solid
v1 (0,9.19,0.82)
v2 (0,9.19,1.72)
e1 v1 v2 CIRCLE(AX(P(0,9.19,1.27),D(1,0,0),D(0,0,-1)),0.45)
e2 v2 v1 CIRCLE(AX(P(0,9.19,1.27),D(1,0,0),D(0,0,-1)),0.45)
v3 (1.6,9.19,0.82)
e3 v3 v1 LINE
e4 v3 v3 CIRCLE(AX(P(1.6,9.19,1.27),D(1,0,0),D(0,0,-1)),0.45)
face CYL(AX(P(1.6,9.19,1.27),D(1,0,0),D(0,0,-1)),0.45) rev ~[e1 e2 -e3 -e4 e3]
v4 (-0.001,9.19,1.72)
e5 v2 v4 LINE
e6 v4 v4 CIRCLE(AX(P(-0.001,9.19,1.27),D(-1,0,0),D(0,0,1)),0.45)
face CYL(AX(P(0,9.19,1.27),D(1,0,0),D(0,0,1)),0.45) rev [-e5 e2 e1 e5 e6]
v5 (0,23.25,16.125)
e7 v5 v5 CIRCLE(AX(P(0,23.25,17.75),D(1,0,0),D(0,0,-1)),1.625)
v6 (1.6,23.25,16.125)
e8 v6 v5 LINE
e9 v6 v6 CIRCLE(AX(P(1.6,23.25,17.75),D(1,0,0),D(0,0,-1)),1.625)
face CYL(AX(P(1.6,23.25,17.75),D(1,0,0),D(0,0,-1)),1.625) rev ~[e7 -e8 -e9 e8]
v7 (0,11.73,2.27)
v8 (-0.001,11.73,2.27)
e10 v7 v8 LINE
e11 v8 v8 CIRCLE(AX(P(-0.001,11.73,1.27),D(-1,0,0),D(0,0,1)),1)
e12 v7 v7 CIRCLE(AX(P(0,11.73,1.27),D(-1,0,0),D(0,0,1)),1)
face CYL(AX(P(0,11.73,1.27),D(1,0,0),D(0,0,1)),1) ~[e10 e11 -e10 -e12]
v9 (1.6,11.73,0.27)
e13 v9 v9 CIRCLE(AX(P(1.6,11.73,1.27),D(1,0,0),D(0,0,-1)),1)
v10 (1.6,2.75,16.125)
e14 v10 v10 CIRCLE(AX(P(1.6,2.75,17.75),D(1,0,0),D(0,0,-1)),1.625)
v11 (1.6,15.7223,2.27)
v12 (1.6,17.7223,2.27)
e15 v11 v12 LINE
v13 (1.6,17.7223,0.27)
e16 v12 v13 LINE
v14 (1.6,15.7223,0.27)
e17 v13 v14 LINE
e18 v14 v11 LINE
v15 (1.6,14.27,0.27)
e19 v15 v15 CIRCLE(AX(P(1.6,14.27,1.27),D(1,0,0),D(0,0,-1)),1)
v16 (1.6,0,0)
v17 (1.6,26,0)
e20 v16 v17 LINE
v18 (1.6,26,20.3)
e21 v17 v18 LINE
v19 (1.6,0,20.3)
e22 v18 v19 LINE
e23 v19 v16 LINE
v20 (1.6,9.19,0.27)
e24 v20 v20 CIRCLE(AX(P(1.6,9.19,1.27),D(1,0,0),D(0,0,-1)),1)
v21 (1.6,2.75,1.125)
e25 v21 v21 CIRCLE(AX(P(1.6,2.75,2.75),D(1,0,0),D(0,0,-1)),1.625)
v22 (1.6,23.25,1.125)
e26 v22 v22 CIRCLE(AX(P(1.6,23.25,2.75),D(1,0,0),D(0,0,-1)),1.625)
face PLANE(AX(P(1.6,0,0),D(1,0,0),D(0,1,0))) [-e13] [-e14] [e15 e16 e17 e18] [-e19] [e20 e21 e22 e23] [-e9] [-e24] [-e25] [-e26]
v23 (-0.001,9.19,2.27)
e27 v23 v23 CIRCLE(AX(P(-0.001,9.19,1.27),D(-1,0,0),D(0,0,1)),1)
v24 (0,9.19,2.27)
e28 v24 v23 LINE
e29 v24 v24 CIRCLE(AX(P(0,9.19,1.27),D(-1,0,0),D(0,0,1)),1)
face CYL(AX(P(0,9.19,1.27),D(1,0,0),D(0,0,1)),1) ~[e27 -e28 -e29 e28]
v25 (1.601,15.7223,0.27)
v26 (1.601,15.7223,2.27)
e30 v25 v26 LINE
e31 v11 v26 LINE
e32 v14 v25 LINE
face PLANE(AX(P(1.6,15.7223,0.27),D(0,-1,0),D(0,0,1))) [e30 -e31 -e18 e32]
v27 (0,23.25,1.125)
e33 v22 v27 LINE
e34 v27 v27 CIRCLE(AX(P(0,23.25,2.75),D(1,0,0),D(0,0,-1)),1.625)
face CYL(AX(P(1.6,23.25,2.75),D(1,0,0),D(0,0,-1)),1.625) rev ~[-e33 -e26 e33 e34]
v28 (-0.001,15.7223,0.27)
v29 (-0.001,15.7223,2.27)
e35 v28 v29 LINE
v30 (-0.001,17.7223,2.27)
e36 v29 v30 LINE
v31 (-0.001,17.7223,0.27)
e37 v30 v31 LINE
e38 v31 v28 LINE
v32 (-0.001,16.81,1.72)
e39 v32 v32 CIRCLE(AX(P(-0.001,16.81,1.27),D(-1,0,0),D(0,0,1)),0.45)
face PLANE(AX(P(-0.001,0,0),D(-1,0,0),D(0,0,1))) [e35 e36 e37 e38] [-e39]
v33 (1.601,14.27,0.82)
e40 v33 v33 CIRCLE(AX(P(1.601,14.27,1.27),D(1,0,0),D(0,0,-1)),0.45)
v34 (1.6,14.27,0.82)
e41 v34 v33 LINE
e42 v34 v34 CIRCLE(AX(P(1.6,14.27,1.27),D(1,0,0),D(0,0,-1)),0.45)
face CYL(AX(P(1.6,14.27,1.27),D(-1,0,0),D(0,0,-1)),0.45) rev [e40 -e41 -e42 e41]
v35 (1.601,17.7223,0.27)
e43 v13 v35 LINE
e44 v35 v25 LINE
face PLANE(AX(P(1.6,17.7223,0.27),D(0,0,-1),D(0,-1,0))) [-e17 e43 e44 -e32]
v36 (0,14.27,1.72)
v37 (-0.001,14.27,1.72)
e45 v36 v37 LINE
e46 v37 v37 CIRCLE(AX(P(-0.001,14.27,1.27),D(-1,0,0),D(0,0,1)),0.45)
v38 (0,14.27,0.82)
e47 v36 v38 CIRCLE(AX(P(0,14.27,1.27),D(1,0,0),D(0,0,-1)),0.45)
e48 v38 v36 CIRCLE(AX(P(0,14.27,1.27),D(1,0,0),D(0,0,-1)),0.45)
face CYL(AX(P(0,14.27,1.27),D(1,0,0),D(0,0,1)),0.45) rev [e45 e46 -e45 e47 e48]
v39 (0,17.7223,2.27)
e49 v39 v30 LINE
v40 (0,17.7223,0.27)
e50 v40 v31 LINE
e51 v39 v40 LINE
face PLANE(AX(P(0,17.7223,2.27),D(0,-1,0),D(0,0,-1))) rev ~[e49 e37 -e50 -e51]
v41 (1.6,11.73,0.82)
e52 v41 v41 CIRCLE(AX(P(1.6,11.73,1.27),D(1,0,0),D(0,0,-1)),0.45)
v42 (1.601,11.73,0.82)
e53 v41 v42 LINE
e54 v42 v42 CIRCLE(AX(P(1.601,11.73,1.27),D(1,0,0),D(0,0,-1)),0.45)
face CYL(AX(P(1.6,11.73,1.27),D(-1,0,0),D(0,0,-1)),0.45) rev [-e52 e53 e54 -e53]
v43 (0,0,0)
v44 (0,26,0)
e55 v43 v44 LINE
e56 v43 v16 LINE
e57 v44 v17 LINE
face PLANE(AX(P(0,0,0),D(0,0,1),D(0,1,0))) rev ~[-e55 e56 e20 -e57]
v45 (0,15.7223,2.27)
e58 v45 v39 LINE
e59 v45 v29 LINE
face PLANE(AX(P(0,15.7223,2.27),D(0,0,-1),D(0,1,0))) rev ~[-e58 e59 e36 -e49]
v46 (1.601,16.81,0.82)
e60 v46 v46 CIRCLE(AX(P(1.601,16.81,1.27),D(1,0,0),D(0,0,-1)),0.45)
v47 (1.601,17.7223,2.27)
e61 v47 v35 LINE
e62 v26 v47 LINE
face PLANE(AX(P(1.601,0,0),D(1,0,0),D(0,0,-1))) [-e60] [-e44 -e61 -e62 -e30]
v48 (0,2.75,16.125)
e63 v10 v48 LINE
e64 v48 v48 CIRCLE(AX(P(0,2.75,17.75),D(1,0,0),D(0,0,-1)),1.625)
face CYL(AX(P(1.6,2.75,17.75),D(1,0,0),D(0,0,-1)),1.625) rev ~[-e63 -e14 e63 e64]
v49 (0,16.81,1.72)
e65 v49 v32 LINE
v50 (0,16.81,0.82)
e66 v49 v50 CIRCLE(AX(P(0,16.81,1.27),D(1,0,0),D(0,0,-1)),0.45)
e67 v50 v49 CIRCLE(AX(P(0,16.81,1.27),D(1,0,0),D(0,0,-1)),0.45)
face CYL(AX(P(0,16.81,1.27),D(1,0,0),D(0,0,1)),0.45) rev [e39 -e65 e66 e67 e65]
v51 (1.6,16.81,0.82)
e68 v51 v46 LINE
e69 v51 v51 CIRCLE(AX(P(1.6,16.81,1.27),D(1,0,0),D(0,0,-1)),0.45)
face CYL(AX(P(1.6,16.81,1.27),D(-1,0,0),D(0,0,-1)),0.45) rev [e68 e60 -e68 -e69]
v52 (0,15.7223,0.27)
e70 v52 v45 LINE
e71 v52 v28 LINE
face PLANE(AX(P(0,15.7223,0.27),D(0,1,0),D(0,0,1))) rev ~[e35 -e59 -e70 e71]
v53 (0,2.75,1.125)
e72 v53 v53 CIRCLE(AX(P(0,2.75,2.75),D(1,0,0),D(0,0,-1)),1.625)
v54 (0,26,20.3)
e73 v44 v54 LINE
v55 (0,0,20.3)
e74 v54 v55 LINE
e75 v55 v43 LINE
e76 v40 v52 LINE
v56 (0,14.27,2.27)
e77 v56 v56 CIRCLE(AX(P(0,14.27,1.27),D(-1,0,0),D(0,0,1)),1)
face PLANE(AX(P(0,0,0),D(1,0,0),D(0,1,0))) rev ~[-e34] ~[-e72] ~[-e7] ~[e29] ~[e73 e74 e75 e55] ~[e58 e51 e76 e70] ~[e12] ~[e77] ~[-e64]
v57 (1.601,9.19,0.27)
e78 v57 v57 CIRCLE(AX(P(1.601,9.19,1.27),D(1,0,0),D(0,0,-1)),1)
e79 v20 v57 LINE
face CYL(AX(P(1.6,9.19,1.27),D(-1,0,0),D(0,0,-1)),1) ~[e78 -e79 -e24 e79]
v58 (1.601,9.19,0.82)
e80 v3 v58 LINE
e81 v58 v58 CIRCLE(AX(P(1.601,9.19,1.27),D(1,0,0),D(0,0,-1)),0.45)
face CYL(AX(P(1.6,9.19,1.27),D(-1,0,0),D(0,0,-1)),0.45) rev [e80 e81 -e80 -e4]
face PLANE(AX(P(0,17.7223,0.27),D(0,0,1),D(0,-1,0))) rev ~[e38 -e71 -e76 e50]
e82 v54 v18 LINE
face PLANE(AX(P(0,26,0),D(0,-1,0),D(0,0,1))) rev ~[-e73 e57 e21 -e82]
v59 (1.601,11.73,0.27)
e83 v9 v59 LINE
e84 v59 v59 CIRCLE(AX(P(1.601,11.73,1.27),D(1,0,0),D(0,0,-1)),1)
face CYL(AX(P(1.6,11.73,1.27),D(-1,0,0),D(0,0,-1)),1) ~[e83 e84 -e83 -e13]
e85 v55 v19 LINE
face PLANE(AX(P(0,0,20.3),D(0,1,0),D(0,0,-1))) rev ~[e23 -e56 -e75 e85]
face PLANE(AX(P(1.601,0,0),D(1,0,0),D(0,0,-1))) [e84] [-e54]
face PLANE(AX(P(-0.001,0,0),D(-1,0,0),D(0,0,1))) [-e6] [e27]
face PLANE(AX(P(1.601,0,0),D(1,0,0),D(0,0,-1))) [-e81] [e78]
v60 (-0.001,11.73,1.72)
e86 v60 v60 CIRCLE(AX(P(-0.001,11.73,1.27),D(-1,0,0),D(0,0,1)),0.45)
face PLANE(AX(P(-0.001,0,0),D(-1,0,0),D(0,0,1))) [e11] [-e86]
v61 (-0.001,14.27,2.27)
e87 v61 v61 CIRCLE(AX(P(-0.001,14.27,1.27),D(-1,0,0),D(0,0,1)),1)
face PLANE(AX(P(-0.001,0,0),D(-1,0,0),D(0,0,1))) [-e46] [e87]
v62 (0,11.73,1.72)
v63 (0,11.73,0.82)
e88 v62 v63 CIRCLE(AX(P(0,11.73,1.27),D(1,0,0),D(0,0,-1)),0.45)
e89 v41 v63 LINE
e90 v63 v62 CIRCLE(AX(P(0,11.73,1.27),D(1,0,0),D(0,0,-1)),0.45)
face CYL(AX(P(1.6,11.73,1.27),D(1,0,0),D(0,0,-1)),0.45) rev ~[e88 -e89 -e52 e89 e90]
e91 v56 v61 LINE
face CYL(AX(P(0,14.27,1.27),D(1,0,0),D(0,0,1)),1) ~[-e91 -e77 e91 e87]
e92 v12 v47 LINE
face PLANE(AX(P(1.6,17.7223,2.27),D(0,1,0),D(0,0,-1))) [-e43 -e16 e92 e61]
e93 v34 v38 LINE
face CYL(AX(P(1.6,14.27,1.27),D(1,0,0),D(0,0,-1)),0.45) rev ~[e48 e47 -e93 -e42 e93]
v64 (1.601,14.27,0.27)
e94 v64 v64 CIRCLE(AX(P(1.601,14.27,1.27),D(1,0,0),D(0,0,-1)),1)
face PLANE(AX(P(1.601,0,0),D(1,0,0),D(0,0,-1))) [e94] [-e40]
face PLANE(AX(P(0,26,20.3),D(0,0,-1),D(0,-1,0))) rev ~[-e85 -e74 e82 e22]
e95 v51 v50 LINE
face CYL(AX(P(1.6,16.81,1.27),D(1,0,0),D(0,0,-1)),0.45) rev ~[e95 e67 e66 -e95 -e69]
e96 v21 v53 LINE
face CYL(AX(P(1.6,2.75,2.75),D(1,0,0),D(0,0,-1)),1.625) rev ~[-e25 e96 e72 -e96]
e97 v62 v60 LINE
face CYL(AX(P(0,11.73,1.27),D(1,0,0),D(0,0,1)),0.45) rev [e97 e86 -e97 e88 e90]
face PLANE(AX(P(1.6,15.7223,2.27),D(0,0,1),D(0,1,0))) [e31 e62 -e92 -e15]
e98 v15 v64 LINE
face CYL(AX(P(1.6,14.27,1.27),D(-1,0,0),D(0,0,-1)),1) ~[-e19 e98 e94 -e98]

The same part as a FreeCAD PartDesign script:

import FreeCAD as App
import Part
import Sketcher
Q = App.Units.Quantity


def add_polygon(sketch, points):
    """Adds a closed chain of lines whose ends are joined by coincident constraints."""
    first, n = sketch.GeometryCount, len(points)
    for a, b in zip(points, points[1:] + points[:1]):
        sketch.addGeometry(Part.LineSegment(App.Vector(*a, 0), App.Vector(*b, 0)), False)
    for i in range(n):
        sketch.addConstraint(Sketcher.Constraint("Coincident", first + i, 2, first + (i + 1) % n, 1))

doc = App.newDocument("Part")
body = doc.addObject("PartDesign::Body", "Body")

sketch1 = body.newObject("Sketcher::SketchObject", "Sketch")
sketch1.AttachmentSupport = (doc.getObject("YZ_Plane"), [""])
sketch1.MapMode = "FlatFace"
add_polygon(sketch1, [(0, 20), (0, 0), (26, 0), (26, 20)])
sketch1.addConstraint(Sketcher.Constraint("Vertical", 0))
sketch1.addConstraint(Sketcher.Constraint("Horizontal", 1))
sketch1.addConstraint(Sketcher.Constraint("Vertical", 2))
sketch1.addConstraint(Sketcher.Constraint("Horizontal", 3))
sketch1.addConstraint(Sketcher.Constraint("Coincident", 0, 2, -1, 1))
sketch1.addConstraint(Sketcher.Constraint("DistanceX", 1, 1, 1, 2, Q("26 mm")))
sketch1.addConstraint(Sketcher.Constraint("DistanceY", 0, 2, 0, 1, Q("20.3 mm")))
pad1 = body.newObject("PartDesign::Pad", "Pad")
pad1.Profile = sketch1
pad1.Length = 1.6

sketch2 = body.newObject("Sketcher::SketchObject", "Sketch001")
sketch2.AttachmentSupport = (doc.getObject("YZ_Plane"), [""])
sketch2.MapMode = "FlatFace"
sketch2.AttachmentOffset = App.Placement(App.Vector(0, 0, 1.6), App.Rotation())
sketch2.addGeometry(Part.Circle(App.Vector(23.25, 2.75, 0), App.Vector(0, 0, 1), 1.62), False)
sketch2.addGeometry(Part.Circle(App.Vector(2.75, 2.75, 0), App.Vector(0, 0, 1), 1.62), False)
sketch2.addGeometry(Part.Circle(App.Vector(16.81, 1.27, 0), App.Vector(0, 0, 1), 0.45), False)
sketch2.addGeometry(Part.Circle(App.Vector(14.27, 1.27, 0), App.Vector(0, 0, 1), 0.45), False)
sketch2.addGeometry(Part.Circle(App.Vector(11.73, 1.27, 0), App.Vector(0, 0, 1), 0.45), False)
sketch2.addGeometry(Part.Circle(App.Vector(9.19, 1.27, 0), App.Vector(0, 0, 1), 0.45), False)
sketch2.addGeometry(Part.Circle(App.Vector(23.25, 17.75, 0), App.Vector(0, 0, 1), 1.62), False)
sketch2.addGeometry(Part.Circle(App.Vector(2.75, 17.75, 0), App.Vector(0, 0, 1), 1.62), False)
sketch2.addConstraint(Sketcher.Constraint("Equal", 0, 1))
sketch2.addConstraint(Sketcher.Constraint("Equal", 2, 3))
sketch2.addConstraint(Sketcher.Constraint("Equal", 3, 4))
sketch2.addConstraint(Sketcher.Constraint("Equal", 4, 5))
sketch2.addConstraint(Sketcher.Constraint("Equal", 1, 6))
sketch2.addConstraint(Sketcher.Constraint("Equal", 6, 7))
sketch2.addConstraint(Sketcher.Constraint("Horizontal", 0, 3, 1, 3))
sketch2.addConstraint(Sketcher.Constraint("Horizontal", 2, 3, 3, 3))
sketch2.addConstraint(Sketcher.Constraint("Horizontal", 3, 3, 4, 3))
sketch2.addConstraint(Sketcher.Constraint("Horizontal", 4, 3, 5, 3))
sketch2.addConstraint(Sketcher.Constraint("Horizontal", 6, 3, 7, 3))
sketch2.addConstraint(Sketcher.Constraint("Vertical", 0, 3, 6, 3))
sketch2.addConstraint(Sketcher.Constraint("Vertical", 1, 3, 7, 3))
sketch2.addConstraint(Sketcher.Constraint("Diameter", 2, Q("0.9 mm")))
sketch2.addConstraint(Sketcher.Constraint("Diameter", 0, Q("3.25 mm")))
sketch2.addConstraint(Sketcher.Constraint("DistanceY", 0, 3, 6, 3, Q("15 mm")))
sketch2.addConstraint(Sketcher.Constraint("DistanceX", 1, 3, 0, 3, Q("20.5 mm")))
sketch2.addConstraint(Sketcher.Constraint("DistanceY", -1, 1, 0, 3, Q("2.75 mm")))
sketch2.addConstraint(Sketcher.Constraint("DistanceX", -1, 1, 1, 3, Q("2.75 mm")))
sketch2.addConstraint(Sketcher.Constraint("DistanceY", -1, 1, 2, 3, Q("1.27 mm")))
sketch2.addConstraint(Sketcher.Constraint("DistanceX", 2, 3, 0, 3, Q("6.44 mm")))
sketch2.addConstraint(Sketcher.Constraint("DistanceX", 3, 3, 2, 3, Q("2.54 mm")))
sketch2.addConstraint(Sketcher.Constraint("DistanceX", 4, 3, 3, 3, Q("2.54 mm")))
sketch2.addConstraint(Sketcher.Constraint("DistanceX", 5, 3, 4, 3, Q("2.54 mm")))
pocket1 = body.newObject("PartDesign::Pocket", "Pocket")
pocket1.Profile = sketch2
pocket1.Type = "ThroughAll"

sketch3 = body.newObject("Sketcher::SketchObject", "Sketch002")
sketch3.AttachmentSupport = (doc.getObject("YZ_Plane"), [""])
sketch3.MapMode = "FlatFace"
sketch3.AttachmentOffset = App.Placement(App.Vector(0, 0, 1.6), App.Rotation())
add_polygon(sketch3, [(17.72, 0.27), (17.72, 2.27), (15.72, 2.27), (15.72, 0.27)])
sketch3.addGeometry(Part.Circle(App.Vector(16.81, 1.27, 0), App.Vector(0, 0, 1), 0.45), False)
sketch3.addGeometry(Part.Circle(App.Vector(14.27, 1.27, 0), App.Vector(0, 0, 1), 1), False)
sketch3.addGeometry(Part.Circle(App.Vector(14.27, 1.27, 0), App.Vector(0, 0, 1), 0.45), False)
sketch3.addGeometry(Part.Circle(App.Vector(11.73, 1.27, 0), App.Vector(0, 0, 1), 1), False)
sketch3.addGeometry(Part.Circle(App.Vector(11.73, 1.27, 0), App.Vector(0, 0, 1), 0.45), False)
sketch3.addGeometry(Part.Circle(App.Vector(9.19, 1.27, 0), App.Vector(0, 0, 1), 1), False)
sketch3.addGeometry(Part.Circle(App.Vector(9.19, 1.27, 0), App.Vector(0, 0, 1), 0.45), False)
sketch3.addConstraint(Sketcher.Constraint("Vertical", 0))
sketch3.addConstraint(Sketcher.Constraint("Horizontal", 1))
sketch3.addConstraint(Sketcher.Constraint("Vertical", 2))
sketch3.addConstraint(Sketcher.Constraint("Horizontal", 3))
sketch3.addConstraint(Sketcher.Constraint("Coincident", 6, 3, 5, 3))
sketch3.addConstraint(Sketcher.Constraint("Coincident", 8, 3, 7, 3))
sketch3.addConstraint(Sketcher.Constraint("Coincident", 10, 3, 9, 3))
sketch3.addConstraint(Sketcher.Constraint("Equal", 4, 6))
sketch3.addConstraint(Sketcher.Constraint("Equal", 5, 7))
sketch3.addConstraint(Sketcher.Constraint("Equal", 6, 8))
sketch3.addConstraint(Sketcher.Constraint("Equal", 7, 9))
sketch3.addConstraint(Sketcher.Constraint("Equal", 8, 10))
sketch3.addConstraint(Sketcher.Constraint("Horizontal", 4, 3, 5, 3))
sketch3.addConstraint(Sketcher.Constraint("Horizontal", 6, 3, 7, 3))
sketch3.addConstraint(Sketcher.Constraint("Horizontal", 8, 3, 9, 3))
sketch3.addConstraint(Sketcher.Constraint("Equal", 3, 0))
sketch3.addConstraint(Sketcher.Constraint("Diameter", 5, Q("2 mm")))
sketch3.addConstraint(Sketcher.Constraint("DistanceX", 1, 2, 1, 1, Q("2 mm")))
sketch3.addConstraint(Sketcher.Constraint("DistanceY", 4, 3, 0, 2, Q("1 mm")))
sketch3.addConstraint(Sketcher.Constraint("Diameter", 4, Q("0.9 mm")))
sketch3.addConstraint(Sketcher.Constraint("DistanceX", 1, 2, 4, 3, Q("1.0877 mm")))
sketch3.addConstraint(Sketcher.Constraint("DistanceX", -1, 1, 4, 3, Q("16.81 mm")))
sketch3.addConstraint(Sketcher.Constraint("DistanceY", -1, 1, 4, 3, Q("1.27 mm")))
sketch3.addConstraint(Sketcher.Constraint("DistanceX", -1, 1, 5, 3, Q("14.27 mm")))
sketch3.addConstraint(Sketcher.Constraint("DistanceX", -1, 1, 7, 3, Q("11.73 mm")))
sketch3.addConstraint(Sketcher.Constraint("DistanceX", -1, 1, 9, 3, Q("9.19 mm")))
pad2 = body.newObject("PartDesign::Pad", "Pad001")
pad2.Profile = sketch3
pad2.Length = 0.001

sketch4 = body.newObject("Sketcher::SketchObject", "Sketch003")
sketch4.AttachmentSupport = (doc.getObject("YZ_Plane"), [""])
sketch4.MapMode = "FlatFace"
add_polygon(sketch4, [(15.72, 2.27), (17.72, 2.27), (17.72, 0.27), (15.72, 0.27)])
sketch4.addGeometry(Part.Circle(App.Vector(16.81, 1.27, 0), App.Vector(0, 0, 1), 0.45), False)
sketch4.addGeometry(Part.Circle(App.Vector(14.27, 1.27, 0), App.Vector(0, 0, 1), 1), False)
sketch4.addGeometry(Part.Circle(App.Vector(14.27, 1.27, 0), App.Vector(0, 0, 1), 0.45), False)
sketch4.addGeometry(Part.Circle(App.Vector(11.73, 1.27, 0), App.Vector(0, 0, 1), 1), False)
sketch4.addGeometry(Part.Circle(App.Vector(11.73, 1.27, 0), App.Vector(0, 0, 1), 0.45), False)
sketch4.addGeometry(Part.Circle(App.Vector(9.19, 1.27, 0), App.Vector(0, 0, 1), 1), False)
sketch4.addGeometry(Part.Circle(App.Vector(9.19, 1.27, 0), App.Vector(0, 0, 1), 0.45), False)
sketch4.addConstraint(Sketcher.Constraint("Horizontal", 0))
sketch4.addConstraint(Sketcher.Constraint("Vertical", 1))
sketch4.addConstraint(Sketcher.Constraint("Horizontal", 2))
sketch4.addConstraint(Sketcher.Constraint("Vertical", 3))
sketch4.addConstraint(Sketcher.Constraint("Coincident", 6, 3, 5, 3))
sketch4.addConstraint(Sketcher.Constraint("Coincident", 8, 3, 7, 3))
sketch4.addConstraint(Sketcher.Constraint("Coincident", 10, 3, 9, 3))
sketch4.addConstraint(Sketcher.Constraint("Equal", 4, 6))
sketch4.addConstraint(Sketcher.Constraint("Equal", 5, 7))
sketch4.addConstraint(Sketcher.Constraint("Equal", 6, 8))
sketch4.addConstraint(Sketcher.Constraint("Equal", 7, 9))
sketch4.addConstraint(Sketcher.Constraint("Equal", 8, 10))
sketch4.addConstraint(Sketcher.Constraint("Horizontal", 4, 3, 5, 3))
sketch4.addConstraint(Sketcher.Constraint("Horizontal", 6, 3, 7, 3))
sketch4.addConstraint(Sketcher.Constraint("Horizontal", 8, 3, 9, 3))
sketch4.addConstraint(Sketcher.Constraint("Equal", 2, 1))
sketch4.addConstraint(Sketcher.Constraint("Diameter", 5, Q("2 mm")))
sketch4.addConstraint(Sketcher.Constraint("Diameter", 4, Q("0.9 mm")))
sketch4.addConstraint(Sketcher.Constraint("DistanceX", 0, 1, 0, 2, Q("2 mm")))
sketch4.addConstraint(Sketcher.Constraint("DistanceY", 4, 3, 0, 2, Q("1 mm")))
sketch4.addConstraint(Sketcher.Constraint("DistanceX", -1, 1, 4, 3, Q("16.81 mm")))
sketch4.addConstraint(Sketcher.Constraint("DistanceY", -1, 1, 4, 3, Q("1.27 mm")))
sketch4.addConstraint(Sketcher.Constraint("DistanceX", -1, 1, 5, 3, Q("14.27 mm")))
sketch4.addConstraint(Sketcher.Constraint("DistanceX", -1, 1, 7, 3, Q("11.73 mm")))
sketch4.addConstraint(Sketcher.Constraint("DistanceX", -1, 1, 9, 3, Q("9.19 mm")))
sketch4.addConstraint(Sketcher.Constraint("DistanceX", -1, 1, 0, 2, Q("17.7223 mm")))
pad3 = body.newObject("PartDesign::Pad", "Pad002")
pad3.Profile = sketch4
pad3.Length = 0.001
pad3.Reversed = True

doc.recompute()
